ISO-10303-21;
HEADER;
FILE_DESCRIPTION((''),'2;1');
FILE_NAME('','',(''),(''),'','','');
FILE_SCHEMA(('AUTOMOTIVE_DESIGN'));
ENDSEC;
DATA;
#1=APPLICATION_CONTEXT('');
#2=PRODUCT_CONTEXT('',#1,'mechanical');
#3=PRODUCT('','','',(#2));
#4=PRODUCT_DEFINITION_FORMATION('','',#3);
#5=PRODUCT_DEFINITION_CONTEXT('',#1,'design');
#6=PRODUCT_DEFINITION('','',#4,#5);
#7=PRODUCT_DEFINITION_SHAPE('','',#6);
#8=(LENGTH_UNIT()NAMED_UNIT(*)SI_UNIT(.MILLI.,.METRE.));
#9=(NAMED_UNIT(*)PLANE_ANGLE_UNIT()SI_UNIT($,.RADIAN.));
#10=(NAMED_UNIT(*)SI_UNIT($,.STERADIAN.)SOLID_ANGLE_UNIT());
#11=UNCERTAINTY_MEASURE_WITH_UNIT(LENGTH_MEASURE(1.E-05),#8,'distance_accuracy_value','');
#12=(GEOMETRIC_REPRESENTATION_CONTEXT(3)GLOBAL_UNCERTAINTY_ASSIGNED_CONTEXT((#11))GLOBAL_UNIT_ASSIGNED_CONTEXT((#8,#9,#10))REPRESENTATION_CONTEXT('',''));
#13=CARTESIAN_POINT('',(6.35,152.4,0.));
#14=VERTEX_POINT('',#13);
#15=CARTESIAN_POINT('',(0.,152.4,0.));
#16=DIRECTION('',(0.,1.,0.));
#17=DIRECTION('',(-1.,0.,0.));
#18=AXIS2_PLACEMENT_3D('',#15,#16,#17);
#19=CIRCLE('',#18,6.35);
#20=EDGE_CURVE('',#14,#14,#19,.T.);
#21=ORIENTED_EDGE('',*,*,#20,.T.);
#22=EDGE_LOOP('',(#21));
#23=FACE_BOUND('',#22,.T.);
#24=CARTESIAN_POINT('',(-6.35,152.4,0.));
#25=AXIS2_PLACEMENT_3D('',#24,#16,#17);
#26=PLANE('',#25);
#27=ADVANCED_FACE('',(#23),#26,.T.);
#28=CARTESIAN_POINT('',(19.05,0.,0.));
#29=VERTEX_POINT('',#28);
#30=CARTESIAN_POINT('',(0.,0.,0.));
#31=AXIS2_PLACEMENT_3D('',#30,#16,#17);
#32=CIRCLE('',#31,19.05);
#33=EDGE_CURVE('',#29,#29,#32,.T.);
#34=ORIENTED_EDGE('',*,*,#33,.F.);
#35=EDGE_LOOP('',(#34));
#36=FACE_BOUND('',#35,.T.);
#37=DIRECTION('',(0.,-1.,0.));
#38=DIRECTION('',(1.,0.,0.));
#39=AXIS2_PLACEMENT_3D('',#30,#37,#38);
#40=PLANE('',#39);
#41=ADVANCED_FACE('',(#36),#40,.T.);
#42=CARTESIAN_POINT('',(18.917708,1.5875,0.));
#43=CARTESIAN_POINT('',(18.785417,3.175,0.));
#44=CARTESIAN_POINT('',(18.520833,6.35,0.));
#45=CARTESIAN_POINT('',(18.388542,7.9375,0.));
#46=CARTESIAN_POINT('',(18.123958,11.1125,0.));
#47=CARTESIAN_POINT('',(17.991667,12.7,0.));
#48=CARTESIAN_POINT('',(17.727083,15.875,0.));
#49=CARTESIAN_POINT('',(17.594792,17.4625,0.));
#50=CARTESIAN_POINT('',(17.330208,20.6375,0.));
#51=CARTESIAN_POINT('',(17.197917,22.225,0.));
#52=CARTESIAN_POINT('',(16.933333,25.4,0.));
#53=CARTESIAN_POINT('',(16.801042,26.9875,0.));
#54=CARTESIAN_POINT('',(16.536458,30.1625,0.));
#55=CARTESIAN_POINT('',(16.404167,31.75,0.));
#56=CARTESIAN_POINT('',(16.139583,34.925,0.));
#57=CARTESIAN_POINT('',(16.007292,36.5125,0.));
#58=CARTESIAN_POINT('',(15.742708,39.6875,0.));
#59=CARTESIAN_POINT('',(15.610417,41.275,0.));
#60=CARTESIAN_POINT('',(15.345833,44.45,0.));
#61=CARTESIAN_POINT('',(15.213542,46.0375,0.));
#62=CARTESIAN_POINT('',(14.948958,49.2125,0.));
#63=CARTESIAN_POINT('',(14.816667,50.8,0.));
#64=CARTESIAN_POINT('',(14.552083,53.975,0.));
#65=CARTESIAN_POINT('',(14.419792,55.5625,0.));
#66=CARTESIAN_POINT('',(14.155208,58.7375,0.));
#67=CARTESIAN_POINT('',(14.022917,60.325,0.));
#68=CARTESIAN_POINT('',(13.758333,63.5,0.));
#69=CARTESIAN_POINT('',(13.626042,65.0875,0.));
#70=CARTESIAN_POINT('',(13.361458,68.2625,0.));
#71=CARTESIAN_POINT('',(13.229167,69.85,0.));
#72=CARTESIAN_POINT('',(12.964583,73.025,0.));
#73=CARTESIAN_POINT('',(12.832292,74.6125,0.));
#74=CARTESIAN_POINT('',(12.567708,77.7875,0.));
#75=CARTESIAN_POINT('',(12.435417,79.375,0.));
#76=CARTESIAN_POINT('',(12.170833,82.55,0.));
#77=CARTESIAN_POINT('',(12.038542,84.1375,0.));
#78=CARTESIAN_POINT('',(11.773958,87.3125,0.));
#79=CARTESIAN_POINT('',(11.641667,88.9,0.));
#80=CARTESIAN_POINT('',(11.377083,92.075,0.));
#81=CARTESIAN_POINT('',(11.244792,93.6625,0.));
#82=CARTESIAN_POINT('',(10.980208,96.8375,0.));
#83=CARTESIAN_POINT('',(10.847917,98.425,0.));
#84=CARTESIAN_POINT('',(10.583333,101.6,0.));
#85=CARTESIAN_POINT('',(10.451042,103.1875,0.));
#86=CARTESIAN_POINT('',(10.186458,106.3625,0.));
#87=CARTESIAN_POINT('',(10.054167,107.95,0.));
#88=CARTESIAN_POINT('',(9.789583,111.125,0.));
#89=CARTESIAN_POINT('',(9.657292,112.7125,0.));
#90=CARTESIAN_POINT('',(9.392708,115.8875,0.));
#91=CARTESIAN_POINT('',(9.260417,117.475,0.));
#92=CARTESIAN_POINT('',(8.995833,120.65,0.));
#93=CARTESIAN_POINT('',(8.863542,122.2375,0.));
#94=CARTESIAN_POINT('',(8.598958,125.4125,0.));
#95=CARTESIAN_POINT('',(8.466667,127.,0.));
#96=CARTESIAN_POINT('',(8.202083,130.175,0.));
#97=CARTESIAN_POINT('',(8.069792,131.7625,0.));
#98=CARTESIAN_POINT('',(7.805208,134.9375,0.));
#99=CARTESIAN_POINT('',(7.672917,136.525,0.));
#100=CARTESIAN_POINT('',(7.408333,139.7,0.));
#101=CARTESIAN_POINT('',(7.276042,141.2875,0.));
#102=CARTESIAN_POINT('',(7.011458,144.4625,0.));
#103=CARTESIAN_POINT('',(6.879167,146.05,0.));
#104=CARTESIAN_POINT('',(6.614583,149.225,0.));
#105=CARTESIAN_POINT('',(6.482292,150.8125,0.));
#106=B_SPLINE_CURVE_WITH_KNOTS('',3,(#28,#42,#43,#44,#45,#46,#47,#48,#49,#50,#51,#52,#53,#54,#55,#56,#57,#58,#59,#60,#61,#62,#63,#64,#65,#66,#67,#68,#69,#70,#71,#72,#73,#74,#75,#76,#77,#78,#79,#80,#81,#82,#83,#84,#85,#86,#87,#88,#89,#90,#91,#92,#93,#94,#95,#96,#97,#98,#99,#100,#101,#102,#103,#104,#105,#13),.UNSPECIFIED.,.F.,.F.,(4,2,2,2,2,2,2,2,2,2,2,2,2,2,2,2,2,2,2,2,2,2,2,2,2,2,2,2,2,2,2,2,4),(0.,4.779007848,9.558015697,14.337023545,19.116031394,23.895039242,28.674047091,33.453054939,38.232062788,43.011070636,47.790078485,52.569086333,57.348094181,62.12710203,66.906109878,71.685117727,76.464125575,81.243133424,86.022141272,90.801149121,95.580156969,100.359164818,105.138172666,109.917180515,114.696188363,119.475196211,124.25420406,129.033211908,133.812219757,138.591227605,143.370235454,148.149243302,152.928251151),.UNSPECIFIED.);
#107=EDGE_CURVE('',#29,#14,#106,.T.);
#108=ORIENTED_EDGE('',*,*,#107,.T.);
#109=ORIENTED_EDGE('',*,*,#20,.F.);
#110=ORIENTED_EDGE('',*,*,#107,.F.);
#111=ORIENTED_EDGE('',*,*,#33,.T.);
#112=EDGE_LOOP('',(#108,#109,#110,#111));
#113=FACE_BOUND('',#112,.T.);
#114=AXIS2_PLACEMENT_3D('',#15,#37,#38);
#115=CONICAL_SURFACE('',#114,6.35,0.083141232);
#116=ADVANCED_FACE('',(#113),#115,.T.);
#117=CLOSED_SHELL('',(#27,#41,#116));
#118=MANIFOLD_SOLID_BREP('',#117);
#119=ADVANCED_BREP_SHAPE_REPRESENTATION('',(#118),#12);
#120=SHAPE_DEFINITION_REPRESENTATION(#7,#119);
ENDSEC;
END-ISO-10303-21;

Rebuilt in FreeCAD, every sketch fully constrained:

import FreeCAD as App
import Part
import Sketcher
from FreeCAD import Vector
Q = App.Units.Quantity


def add_polygon(sketch, points):
    """Adds a closed chain of lines whose ends are joined by coincident constraints."""
    first, n = sketch.GeometryCount, len(points)
    for a, b in zip(points, points[1:] + points[:1]):
        sketch.addGeometry(Part.LineSegment(App.Vector(*a, 0), App.Vector(*b, 0)), False)
    for i in range(n):
        sketch.addConstraint(Sketcher.Constraint("Coincident", first + i, 2, first + (i + 1) % n, 1))

doc = App.newDocument("Part")
params = doc.addObject("Spreadsheet::Sheet", "Params")
for row, (alias, value) in enumerate([
    ("sketch1_height", "6 in"),
    ("sketch1_width", "0.75 in"),
    ("sketch1_width2", "0.25 in"),
    ("revolution_angle", "360 deg"),
], start=1):
    params.set(f"A{row}", alias)
    params.set(f"B{row}", "=" + value)
    params.setAlias(f"B{row}", alias)

body = doc.addObject("PartDesign::Body", "Body")

# Sketch on XY plane
sketch1 = body.newObject("Sketcher::SketchObject", "Sketch")
sketch1.AttachmentSupport = (doc.getObject("XY_Plane"), [""])
sketch1.MapMode = "FlatFace"
add_polygon(sketch1, [(-19.05, 0), (0, 0), (0, 152.4), (-6.35, 152.4)])  # lines 0-3
sketch1.addConstraint([
    Sketcher.Constraint("Horizontal", 0),
    Sketcher.Constraint("Vertical", 1),
    Sketcher.Constraint("Horizontal", 2),
    Sketcher.Constraint("Coincident", 0, 2, -1, 1),
    Sketcher.Constraint("DistanceY", 1, 1, 1, 2, Q("6 in")),
    Sketcher.Constraint("DistanceX", 0, 1, 0, 2, Q("0.75 in")),
    Sketcher.Constraint("DistanceX", 2, 2, 2, 1, Q("0.25 in")),
])
sketch1.setExpression("Constraints[8]", "Params.sketch1_height")
sketch1.setExpression("Constraints[9]", "Params.sketch1_width")
sketch1.setExpression("Constraints[10]", "Params.sketch1_width2")
revolution = body.newObject("PartDesign::Revolution", "Revolution")
revolution.Profile = sketch1
revolution.ReferenceAxis = (sketch1, ["V_Axis"])
revolution.setExpression("Angle", "Params.revolution_angle")

doc.recompute()
